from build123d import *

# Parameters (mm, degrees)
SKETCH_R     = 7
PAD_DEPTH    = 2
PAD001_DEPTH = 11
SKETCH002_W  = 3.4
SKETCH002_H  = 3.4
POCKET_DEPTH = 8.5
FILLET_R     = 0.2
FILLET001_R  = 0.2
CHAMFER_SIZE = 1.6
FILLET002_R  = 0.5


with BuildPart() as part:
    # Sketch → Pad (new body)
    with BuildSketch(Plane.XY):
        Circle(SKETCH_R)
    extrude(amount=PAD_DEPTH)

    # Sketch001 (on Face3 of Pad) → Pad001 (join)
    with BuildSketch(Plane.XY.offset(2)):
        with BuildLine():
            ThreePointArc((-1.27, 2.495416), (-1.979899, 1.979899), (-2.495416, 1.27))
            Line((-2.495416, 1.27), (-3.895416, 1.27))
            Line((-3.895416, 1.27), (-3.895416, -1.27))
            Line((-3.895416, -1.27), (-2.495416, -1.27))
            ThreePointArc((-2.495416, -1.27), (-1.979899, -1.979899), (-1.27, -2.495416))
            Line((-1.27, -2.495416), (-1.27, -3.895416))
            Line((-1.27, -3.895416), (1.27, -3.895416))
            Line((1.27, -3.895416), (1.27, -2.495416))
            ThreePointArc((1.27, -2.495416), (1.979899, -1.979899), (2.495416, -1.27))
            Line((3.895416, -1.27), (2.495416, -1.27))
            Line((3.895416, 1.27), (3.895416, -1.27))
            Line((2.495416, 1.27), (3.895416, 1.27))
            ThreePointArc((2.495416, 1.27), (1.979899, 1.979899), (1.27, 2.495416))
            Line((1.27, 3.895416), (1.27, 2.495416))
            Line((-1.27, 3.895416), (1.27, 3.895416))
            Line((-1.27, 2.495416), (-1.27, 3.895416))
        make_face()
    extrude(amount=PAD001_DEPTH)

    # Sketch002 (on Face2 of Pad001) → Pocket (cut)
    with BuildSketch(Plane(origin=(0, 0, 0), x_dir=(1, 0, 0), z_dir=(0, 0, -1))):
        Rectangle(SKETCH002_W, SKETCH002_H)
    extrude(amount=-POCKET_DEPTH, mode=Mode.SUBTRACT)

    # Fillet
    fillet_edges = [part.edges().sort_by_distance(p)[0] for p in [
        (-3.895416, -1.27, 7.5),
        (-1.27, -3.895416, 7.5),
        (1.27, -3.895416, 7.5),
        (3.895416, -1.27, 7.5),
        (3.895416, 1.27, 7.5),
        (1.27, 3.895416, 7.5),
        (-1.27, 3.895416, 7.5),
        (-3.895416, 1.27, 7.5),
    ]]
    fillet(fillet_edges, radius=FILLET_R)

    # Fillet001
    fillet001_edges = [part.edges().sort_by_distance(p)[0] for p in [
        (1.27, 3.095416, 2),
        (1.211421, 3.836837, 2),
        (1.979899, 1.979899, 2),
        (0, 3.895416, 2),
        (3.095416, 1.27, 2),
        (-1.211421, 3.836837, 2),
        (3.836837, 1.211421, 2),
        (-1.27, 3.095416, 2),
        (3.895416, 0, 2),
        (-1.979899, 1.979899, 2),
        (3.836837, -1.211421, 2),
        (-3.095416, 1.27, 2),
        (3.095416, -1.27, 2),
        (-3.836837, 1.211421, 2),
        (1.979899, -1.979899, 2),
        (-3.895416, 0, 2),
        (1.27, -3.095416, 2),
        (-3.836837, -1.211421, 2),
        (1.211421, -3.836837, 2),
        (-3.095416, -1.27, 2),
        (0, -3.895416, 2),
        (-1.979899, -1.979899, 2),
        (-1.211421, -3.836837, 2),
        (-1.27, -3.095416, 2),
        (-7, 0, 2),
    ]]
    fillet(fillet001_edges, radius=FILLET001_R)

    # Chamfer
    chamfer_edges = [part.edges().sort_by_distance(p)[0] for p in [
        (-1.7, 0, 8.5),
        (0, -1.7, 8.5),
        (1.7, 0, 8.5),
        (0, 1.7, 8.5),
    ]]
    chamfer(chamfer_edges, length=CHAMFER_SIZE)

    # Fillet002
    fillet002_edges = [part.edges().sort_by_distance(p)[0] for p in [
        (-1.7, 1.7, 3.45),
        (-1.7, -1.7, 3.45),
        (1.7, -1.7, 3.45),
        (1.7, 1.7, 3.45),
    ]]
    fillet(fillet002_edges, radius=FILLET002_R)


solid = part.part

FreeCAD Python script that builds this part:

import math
import FreeCAD as App
import Part
import Sketcher
from FreeCAD import Vector


def edges_at(feature, points):
    """Names of the edges that pass closest to the given points."""
    edges = feature.Shape.Edges
    near = lambda p: min(range(len(edges)), key=lambda i: edges[i].distToShape(Part.Vertex(*p))[0])
    return sorted({f"Edge{near(p) + 1}" for p in points})

doc = App.newDocument("Part")
params = doc.addObject("Spreadsheet::Sheet", "Params")
for row, (alias, value) in enumerate([
    ("sketch1_diameter", "14 mm"),
    ("pad1_length", "2 mm"),
    ("sketch2_width", "1.4 mm"),
    ("sketch2_width2", "2.54 mm"),
    ("pad2_length", "11 mm"),
    ("sketch3_width", "3.4 mm"),
    ("pocket1_length", "8.5 mm"),
    ("fillet_radius", "0.2 mm"),
    ("fillet2_radius", "0.2 mm"),
    ("chamfer_size", "1.6 mm"),
    ("fillet3_radius", "0.5 mm"),
], start=1):
    params.set(f"A{row}", alias)
    params.set(f"B{row}", "=" + value)
    params.setAlias(f"B{row}", alias)

body = doc.addObject("PartDesign::Body", "Body")

# Sketch on XY plane
sketch1 = body.newObject("Sketcher::SketchObject", "Sketch")
sketch1.AttachmentSupport = (doc.getObject("XY_Plane"), [""])
sketch1.MapMode = "FlatFace"
sketch1.addGeometry(Part.Circle(Vector(0, 0, 0), Vector(0, 0, 1), 7), False)
sketch1.addConstraint([
    Sketcher.Constraint("Coincident", 0, 3, -1, 1),
    Sketcher.Constraint("Diameter", 0, 14.0),
])
sketch1.setExpression("Constraints[1]", "Params.sketch1_diameter")
pad1 = body.newObject("PartDesign::Pad", "Pad")
pad1.Profile = sketch1
pad1.setExpression("Length", "Params.pad1_length")

# Sketch on XY plane
sketch2 = body.newObject("Sketcher::SketchObject", "Sketch001")
sketch2.AttachmentSupport = (doc.getObject("XY_Plane"), [""])
sketch2.MapMode = "FlatFace"
sketch2.AttachmentOffset = App.Placement(Vector(0, 0, 2), App.Rotation())
sketch2.addGeometry([
    Part.ArcOfCircle(Part.Circle(Vector(0, 0, 0), Vector(0, 0, 1), 2.8), math.radians(117), math.radians(153)),  # 0
    Part.LineSegment(Vector(-2.5, 1.3, 0), Vector(-3.9, 1.3, 0)),  # 1
    Part.LineSegment(Vector(-3.9, 1.3, 0), Vector(-3.9, -1.3, 0)),  # 2
    Part.LineSegment(Vector(-3.9, -1.3, 0), Vector(-2.5, -1.3, 0)),  # 3
    Part.ArcOfCircle(Part.Circle(Vector(0, 0, 0), Vector(0, 0, 1), 2.8), math.radians(-153), math.radians(-117)),  # 4
    Part.LineSegment(Vector(-1.3, -2.5, 0), Vector(-1.3, -3.9, 0)),  # 5
    Part.LineSegment(Vector(-1.3, -3.9, 0), Vector(1.3, -3.9, 0)),  # 6
    Part.LineSegment(Vector(1.3, -3.9, 0), Vector(1.3, -2.5, 0)),  # 7
    Part.ArcOfCircle(Part.Circle(Vector(0, 0, 0), Vector(0, 0, 1), 2.8), math.radians(-63), math.radians(-27)),  # 8
    Part.LineSegment(Vector(2.5, -1.3, 0), Vector(3.9, -1.3, 0)),  # 9
    Part.LineSegment(Vector(3.9, -1.3, 0), Vector(3.9, 1.3, 0)),  # 10
    Part.LineSegment(Vector(3.9, 1.3, 0), Vector(2.5, 1.3, 0)),  # 11
    Part.ArcOfCircle(Part.Circle(Vector(0, 0, 0), Vector(0, 0, 1), 2.8), math.radians(27), math.radians(63)),  # 12
    Part.LineSegment(Vector(1.3, 2.5, 0), Vector(1.3, 3.9, 0)),  # 13
    Part.LineSegment(Vector(1.3, 3.9, 0), Vector(-1.3, 3.9, 0)),  # 14
    Part.LineSegment(Vector(-1.3, 3.9, 0), Vector(-1.3, 2.5, 0)),  # 15
], False)
sketch2.addConstraint([
    Sketcher.Constraint("Coincident", 0, 2, 1, 1),
    Sketcher.Constraint("Coincident", 1, 2, 2, 1),
    Sketcher.Constraint("Coincident", 2, 2, 3, 1),
    Sketcher.Constraint("Coincident", 3, 2, 4, 1),
    Sketcher.Constraint("Coincident", 4, 2, 5, 1),
    Sketcher.Constraint("Coincident", 5, 2, 6, 1),
    Sketcher.Constraint("Coincident", 6, 2, 7, 1),
    Sketcher.Constraint("Coincident", 7, 2, 8, 1),
    Sketcher.Constraint("Coincident", 8, 2, 9, 1),
    Sketcher.Constraint("Coincident", 9, 2, 10, 1),
    Sketcher.Constraint("Coincident", 10, 2, 11, 1),
    Sketcher.Constraint("Coincident", 11, 2, 12, 1),
    Sketcher.Constraint("Coincident", 12, 2, 13, 1),
    Sketcher.Constraint("Coincident", 13, 2, 14, 1),
    Sketcher.Constraint("Coincident", 14, 2, 15, 1),
    Sketcher.Constraint("Coincident", 15, 2, 0, 1),
    Sketcher.Constraint("Horizontal", 1),
    Sketcher.Constraint("Vertical", 2),
    Sketcher.Constraint("Horizontal", 3),
    Sketcher.Constraint("Vertical", 5),
    Sketcher.Constraint("Horizontal", 6),
    Sketcher.Constraint("Vertical", 7),
    Sketcher.Constraint("Horizontal", 9),
    Sketcher.Constraint("Vertical", 10),
    Sketcher.Constraint("Horizontal", 11),
    Sketcher.Constraint("Vertical", 13),
    Sketcher.Constraint("Horizontal", 14),
    Sketcher.Constraint("Vertical", 15),
    Sketcher.Constraint("Coincident", 0, 3, -1, 1),
    Sketcher.Constraint("Coincident", 4, 3, -1, 1),
    Sketcher.Constraint("Coincident", 8, 3, -1, 1),
    Sketcher.Constraint("Coincident", 12, 3, -1, 1),
    Sketcher.Constraint("Equal", 0, 4),
    Sketcher.Constraint("Equal", 4, 8),
    Sketcher.Constraint("Equal", 8, 12),
    Sketcher.Constraint("Symmetric", 1, 2, 9, 2, -1, 1),
    Sketcher.Constraint("Symmetric", 5, 2, 13, 2, -1, 1),
    Sketcher.Constraint("Horizontal", 4, 2, 7, 2),
    Sketcher.Constraint("Horizontal", 3, 2, 8, 2),
    Sketcher.Constraint("Horizontal", 1, 2, 10, 2),
    Sketcher.Constraint("Horizontal", 12, 2, 15, 2),
    Sketcher.Constraint("Equal", 14, 2),
    Sketcher.Constraint("Equal", 11, 5),
    Sketcher.Constraint("DistanceX", 1, 2, 1, 1, 1.4),
    Sketcher.Constraint("DistanceX", 6, 1, 6, 2, 2.54),
    Sketcher.Constraint("Radius", 0, 2.800003),
])
sketch2.setExpression("Constraints[43]", "Params.sketch2_width")
sketch2.setExpression("Constraints[44]", "Params.sketch2_width2")
pad2 = body.newObject("PartDesign::Pad", "Pad001")
pad2.Profile = sketch2
pad2.setExpression("Length", "Params.pad2_length")

# Sketch on XY plane
sketch3 = body.newObject("Sketcher::SketchObject", "Sketch002")
sketch3.AttachmentSupport = (doc.getObject("XY_Plane"), [""])
sketch3.MapMode = "FlatFace"
sketch3.addGeometry([
    Part.LineSegment(Vector(-1.7, -1.7, 0), Vector(-1.7, 1.7, 0)),
    Part.LineSegment(Vector(-1.7, 1.7, 0), Vector(1.7, 1.7, 0)),
    Part.LineSegment(Vector(1.7, 1.7, 0), Vector(1.7, -1.7, 0)),
    Part.LineSegment(Vector(1.7, -1.7, 0), Vector(-1.7, -1.7, 0)),
], False)
sketch3.addConstraint([
    Sketcher.Constraint("Coincident", 0, 2, 1, 1),
    Sketcher.Constraint("Coincident", 1, 2, 2, 1),
    Sketcher.Constraint("Coincident", 2, 2, 3, 1),
    Sketcher.Constraint("Coincident", 3, 2, 0, 1),
    Sketcher.Constraint("Vertical", 0),
    Sketcher.Constraint("Horizontal", 1),
    Sketcher.Constraint("Vertical", 2),
    Sketcher.Constraint("Horizontal", 3),
    Sketcher.Constraint("Symmetric", 0, 2, 2, 2, -1, 1),
    Sketcher.Constraint("Equal", 3, 0),
    Sketcher.Constraint("DistanceX", 1, 1, 1, 2, 3.4),
])
sketch3.setExpression("Constraints[10]", "Params.sketch3_width")
pocket1 = body.newObject("PartDesign::Pocket", "Pocket")
pocket1.Profile = sketch3
pocket1.setExpression("Length", "Params.pocket1_length")
pocket1.Reversed = True
doc.recompute()

fillet = body.newObject("PartDesign::Fillet", "Fillet")
fillet.Base = (pocket1, edges_at(pocket1, [
    (-3.895, -1.27, 7.5),
    (-1.27, -3.895, 7.5),
    (1.27, -3.895, 7.5),
    (3.895, -1.27, 7.5),
    (3.895, 1.27, 7.5),
    (1.27, 3.895, 7.5),
    (-1.27, 3.895, 7.5),
    (-3.895, 1.27, 7.5),
]))
fillet.setExpression("Radius", "Params.fillet_radius")
doc.recompute()

fillet2 = body.newObject("PartDesign::Fillet", "Fillet001")
fillet2.Base = (fillet, edges_at(fillet, [
    (1.27, 3.095, 2),
    (1.211, 3.837, 2),
    (1.98, 1.98, 2),
    (0, 3.895, 2),
    (3.095, 1.27, 2),
    (-1.211, 3.837, 2),
    (3.837, 1.211, 2),
    (-1.27, 3.095, 2),
    (3.895, 0, 2),
    (-1.98, 1.98, 2),
    (3.837, -1.211, 2),
    (-3.095, 1.27, 2),
    (3.095, -1.27, 2),
    (-3.837, 1.211, 2),
    (1.98, -1.98, 2),
    (-3.895, 0, 2),
    (1.27, -3.095, 2),
    (-3.837, -1.211, 2),
    (1.211, -3.837, 2),
    (-3.095, -1.27, 2),
    (0, -3.895, 2),
    (-1.98, -1.98, 2),
    (-1.211, -3.837, 2),
    (-1.27, -3.095, 2),
    (-7, 0, 2),
]))
fillet2.setExpression("Radius", "Params.fillet2_radius")
doc.recompute()

chamfer = body.newObject("PartDesign::Chamfer", "Chamfer")
chamfer.Base = (fillet2, edges_at(fillet2, [
    (-1.7, 0, 8.5),
    (0, -1.7, 8.5),
    (1.7, 0, 8.5),
    (0, 1.7, 8.5),
]))
chamfer.setExpression("Size", "Params.chamfer_size")
doc.recompute()

fillet3 = body.newObject("PartDesign::Fillet", "Fillet002")
fillet3.Base = (chamfer, edges_at(chamfer, [
    (-1.7, 1.7, 3.45),
    (-1.7, -1.7, 3.45),
    (1.7, -1.7, 3.45),
    (1.7, 1.7, 3.45),
]))
fillet3.setExpression("Radius", "Params.fillet3_radius")

doc.recompute()
